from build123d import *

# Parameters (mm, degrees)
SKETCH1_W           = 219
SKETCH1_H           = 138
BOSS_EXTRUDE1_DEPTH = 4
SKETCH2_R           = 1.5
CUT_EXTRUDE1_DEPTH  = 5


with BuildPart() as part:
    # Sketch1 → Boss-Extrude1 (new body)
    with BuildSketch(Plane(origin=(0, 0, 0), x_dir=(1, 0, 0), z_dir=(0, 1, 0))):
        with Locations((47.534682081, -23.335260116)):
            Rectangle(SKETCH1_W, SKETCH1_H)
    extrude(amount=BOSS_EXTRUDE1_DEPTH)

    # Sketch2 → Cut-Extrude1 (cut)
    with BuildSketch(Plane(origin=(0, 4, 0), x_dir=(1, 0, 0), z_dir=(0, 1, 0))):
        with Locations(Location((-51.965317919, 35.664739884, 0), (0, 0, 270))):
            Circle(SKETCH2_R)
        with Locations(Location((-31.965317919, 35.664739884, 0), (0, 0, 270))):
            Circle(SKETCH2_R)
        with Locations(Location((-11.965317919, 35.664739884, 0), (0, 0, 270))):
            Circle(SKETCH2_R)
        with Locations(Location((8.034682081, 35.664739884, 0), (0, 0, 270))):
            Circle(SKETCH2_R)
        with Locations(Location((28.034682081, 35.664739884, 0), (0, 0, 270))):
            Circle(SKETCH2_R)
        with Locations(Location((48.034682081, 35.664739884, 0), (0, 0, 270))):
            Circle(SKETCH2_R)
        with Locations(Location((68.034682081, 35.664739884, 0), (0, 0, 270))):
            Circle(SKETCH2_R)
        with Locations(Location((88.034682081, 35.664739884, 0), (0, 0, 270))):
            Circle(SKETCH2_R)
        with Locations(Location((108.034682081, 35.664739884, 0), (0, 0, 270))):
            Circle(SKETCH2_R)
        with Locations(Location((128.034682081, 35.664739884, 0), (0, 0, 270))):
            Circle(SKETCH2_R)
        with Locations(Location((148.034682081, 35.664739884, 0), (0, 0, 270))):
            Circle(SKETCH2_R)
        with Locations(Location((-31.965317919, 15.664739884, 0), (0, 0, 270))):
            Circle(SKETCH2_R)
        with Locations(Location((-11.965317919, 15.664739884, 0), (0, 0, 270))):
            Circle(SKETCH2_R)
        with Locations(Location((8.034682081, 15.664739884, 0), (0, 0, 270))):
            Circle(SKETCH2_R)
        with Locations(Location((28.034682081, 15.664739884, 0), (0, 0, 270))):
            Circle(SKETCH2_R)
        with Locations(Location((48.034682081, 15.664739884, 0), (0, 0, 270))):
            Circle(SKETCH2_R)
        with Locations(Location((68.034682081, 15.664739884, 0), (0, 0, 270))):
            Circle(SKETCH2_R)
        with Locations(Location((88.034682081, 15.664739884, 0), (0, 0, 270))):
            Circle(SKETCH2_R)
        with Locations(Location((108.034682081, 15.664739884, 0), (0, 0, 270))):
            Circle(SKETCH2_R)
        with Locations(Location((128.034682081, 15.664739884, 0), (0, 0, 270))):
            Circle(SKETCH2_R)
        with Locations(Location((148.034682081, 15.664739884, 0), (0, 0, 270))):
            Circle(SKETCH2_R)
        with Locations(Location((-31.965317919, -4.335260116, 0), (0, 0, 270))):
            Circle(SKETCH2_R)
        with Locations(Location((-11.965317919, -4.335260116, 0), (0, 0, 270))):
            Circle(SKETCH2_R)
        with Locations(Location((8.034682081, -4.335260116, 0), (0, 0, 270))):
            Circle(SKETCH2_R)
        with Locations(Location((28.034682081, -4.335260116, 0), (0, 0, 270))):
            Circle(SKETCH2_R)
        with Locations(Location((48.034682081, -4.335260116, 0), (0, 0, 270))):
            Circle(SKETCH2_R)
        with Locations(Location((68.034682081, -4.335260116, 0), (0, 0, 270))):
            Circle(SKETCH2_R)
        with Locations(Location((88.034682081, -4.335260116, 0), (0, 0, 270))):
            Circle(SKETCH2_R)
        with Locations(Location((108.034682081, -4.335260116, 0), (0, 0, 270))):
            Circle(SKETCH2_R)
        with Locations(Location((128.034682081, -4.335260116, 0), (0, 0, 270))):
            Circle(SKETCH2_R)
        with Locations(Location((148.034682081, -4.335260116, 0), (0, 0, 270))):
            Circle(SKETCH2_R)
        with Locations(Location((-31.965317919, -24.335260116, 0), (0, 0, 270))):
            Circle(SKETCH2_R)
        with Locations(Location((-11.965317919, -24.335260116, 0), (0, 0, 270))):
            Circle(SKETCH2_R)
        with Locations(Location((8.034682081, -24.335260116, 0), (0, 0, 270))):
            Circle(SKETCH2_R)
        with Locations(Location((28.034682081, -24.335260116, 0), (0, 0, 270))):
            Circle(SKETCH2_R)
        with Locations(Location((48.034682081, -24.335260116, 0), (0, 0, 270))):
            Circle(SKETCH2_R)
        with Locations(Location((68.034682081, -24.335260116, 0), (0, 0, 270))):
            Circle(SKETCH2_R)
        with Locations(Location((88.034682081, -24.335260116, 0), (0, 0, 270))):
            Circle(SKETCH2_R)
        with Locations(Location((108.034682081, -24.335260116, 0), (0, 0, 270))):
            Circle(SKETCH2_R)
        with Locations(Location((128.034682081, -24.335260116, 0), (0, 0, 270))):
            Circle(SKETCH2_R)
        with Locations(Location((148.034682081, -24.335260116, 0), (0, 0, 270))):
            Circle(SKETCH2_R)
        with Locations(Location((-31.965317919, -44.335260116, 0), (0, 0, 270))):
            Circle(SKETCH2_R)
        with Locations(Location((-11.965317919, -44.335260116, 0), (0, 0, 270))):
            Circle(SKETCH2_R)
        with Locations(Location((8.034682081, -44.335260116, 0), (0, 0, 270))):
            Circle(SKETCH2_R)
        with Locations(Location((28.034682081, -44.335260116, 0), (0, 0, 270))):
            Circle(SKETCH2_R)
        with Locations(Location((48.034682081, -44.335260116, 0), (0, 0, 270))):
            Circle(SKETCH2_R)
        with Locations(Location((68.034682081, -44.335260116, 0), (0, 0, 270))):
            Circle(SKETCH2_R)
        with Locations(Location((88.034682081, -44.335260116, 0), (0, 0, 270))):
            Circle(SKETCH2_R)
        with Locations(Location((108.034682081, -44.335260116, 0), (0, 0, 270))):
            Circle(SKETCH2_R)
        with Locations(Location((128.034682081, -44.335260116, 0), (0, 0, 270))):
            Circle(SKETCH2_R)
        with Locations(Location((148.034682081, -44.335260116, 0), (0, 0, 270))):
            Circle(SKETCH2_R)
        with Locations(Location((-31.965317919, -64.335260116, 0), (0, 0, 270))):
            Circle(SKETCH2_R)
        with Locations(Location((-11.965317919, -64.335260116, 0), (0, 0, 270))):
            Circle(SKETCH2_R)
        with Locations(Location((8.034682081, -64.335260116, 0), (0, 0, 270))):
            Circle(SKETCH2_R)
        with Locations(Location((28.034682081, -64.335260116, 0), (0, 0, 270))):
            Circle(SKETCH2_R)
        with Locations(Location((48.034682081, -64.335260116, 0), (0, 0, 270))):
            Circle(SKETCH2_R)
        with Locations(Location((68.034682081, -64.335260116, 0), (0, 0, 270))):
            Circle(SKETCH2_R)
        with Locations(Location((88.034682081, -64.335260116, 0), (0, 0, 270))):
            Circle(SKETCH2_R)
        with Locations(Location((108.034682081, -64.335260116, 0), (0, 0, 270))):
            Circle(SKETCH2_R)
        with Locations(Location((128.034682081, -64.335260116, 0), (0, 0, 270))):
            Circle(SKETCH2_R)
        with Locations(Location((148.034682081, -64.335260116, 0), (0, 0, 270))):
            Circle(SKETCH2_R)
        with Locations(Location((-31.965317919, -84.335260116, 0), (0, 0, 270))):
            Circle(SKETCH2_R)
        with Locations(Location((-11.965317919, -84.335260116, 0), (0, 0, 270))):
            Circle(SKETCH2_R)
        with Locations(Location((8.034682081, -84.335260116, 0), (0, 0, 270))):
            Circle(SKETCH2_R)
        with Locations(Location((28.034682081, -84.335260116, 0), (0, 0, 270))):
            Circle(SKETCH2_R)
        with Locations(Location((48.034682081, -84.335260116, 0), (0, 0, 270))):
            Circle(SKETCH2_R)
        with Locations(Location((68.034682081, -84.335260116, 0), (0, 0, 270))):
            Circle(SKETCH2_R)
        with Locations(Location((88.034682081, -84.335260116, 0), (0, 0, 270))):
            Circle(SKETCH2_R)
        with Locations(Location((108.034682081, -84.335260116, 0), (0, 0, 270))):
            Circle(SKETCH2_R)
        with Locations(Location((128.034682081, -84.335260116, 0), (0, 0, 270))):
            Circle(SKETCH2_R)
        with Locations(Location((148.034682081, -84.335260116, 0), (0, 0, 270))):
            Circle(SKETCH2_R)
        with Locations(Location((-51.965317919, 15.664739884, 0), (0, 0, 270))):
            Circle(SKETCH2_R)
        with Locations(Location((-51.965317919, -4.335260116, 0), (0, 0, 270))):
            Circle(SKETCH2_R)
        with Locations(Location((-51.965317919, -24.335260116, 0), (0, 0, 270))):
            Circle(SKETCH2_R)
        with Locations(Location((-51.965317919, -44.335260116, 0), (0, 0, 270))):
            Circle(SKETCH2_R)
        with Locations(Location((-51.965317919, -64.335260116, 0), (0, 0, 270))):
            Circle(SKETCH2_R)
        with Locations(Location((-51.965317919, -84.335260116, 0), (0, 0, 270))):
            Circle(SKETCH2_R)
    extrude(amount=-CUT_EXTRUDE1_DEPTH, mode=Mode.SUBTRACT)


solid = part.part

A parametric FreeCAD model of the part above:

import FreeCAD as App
import Part
import Sketcher

V = App.Vector


def add_polygon(sketch, points):
    """Adds a closed chain of lines whose ends are joined by coincident constraints."""
    first, n = sketch.GeometryCount, len(points)
    for a, b in zip(points, points[1:] + points[:1]):
        sketch.addGeometry(Part.LineSegment(App.Vector(*a, 0), App.Vector(*b, 0)), False)
    for i in range(n):
        sketch.addConstraint(Sketcher.Constraint("Coincident", first + i, 2, first + (i + 1) % n, 1))

doc = App.newDocument("Part")
body = doc.addObject("PartDesign::Body", "Body")

sketch1 = doc.addObject("Sketcher::SketchObject", "Sketch")
body.addObject(sketch1)
sketch1.AttachmentSupport = (doc.XZ_Plane, [""])
sketch1.MapMode = "FlatFace"
add_polygon(sketch1, [(-62, -46), (-62, 92), (157, 92), (157, -46)])
sketch1.addConstraint(Sketcher.Constraint("Vertical", 0))
sketch1.addConstraint(Sketcher.Constraint("Horizontal", 1))
sketch1.addConstraint(Sketcher.Constraint("Vertical", 2))
sketch1.addConstraint(Sketcher.Constraint("Horizontal", 3))
sketch1.addConstraint(Sketcher.Constraint("DistanceX", 1, 1, 1, 2, 219.0))
sketch1.addConstraint(Sketcher.Constraint("DistanceY", 0, 1, 0, 2, 138.0))
sketch1.addConstraint(Sketcher.Constraint("DistanceY", -1, 1, 0, 2, 92.33526))
sketch1.addConstraint(Sketcher.Constraint("DistanceX", 0, 2, -1, 1, 61.965318))
pad1 = doc.addObject("PartDesign::Pad", "Pad")
body.addObject(pad1)
pad1.Profile = sketch1
pad1.Length = 4
pad1.Reversed = True

sketch2 = doc.addObject("Sketcher::SketchObject", "Sketch001")
body.addObject(sketch2)
sketch2.AttachmentSupport = (doc.XZ_Plane, [""])
sketch2.MapMode = "FlatFace"
sketch2.AttachmentOffset = App.Placement(V(0, 0, -4), App.Rotation())
sketch2.addGeometry(Part.Circle(V(-52, -35.7, 0), V(0, 0, 1), 1.5), False)
sketch2.addGeometry(Part.Circle(V(-32, -35.7, 0), V(0, 0, 1), 1.5), False)
sketch2.addGeometry(Part.Circle(V(-12, -35.7, 0), V(0, 0, 1), 1.5), False)
sketch2.addGeometry(Part.Circle(V(8, -35.7, 0), V(0, 0, 1), 1.5), False)
sketch2.addGeometry(Part.Circle(V(28, -35.7, 0), V(0, 0, 1), 1.5), False)
sketch2.addGeometry(Part.Circle(V(48, -35.7, 0), V(0, 0, 1), 1.5), False)
sketch2.addGeometry(Part.Circle(V(68, -35.7, 0), V(0, 0, 1), 1.5), False)
sketch2.addGeometry(Part.Circle(V(88, -35.7, 0), V(0, 0, 1), 1.5), False)
sketch2.addGeometry(Part.Circle(V(108, -35.7, 0), V(0, 0, 1), 1.5), False)
sketch2.addGeometry(Part.Circle(V(128, -35.7, 0), V(0, 0, 1), 1.5), False)
sketch2.addGeometry(Part.Circle(V(148, -35.7, 0), V(0, 0, 1), 1.5), False)
sketch2.addGeometry(Part.Circle(V(-32, -15.7, 0), V(0, 0, 1), 1.5), False)
sketch2.addGeometry(Part.Circle(V(-12, -15.7, 0), V(0, 0, 1), 1.5), False)
sketch2.addGeometry(Part.Circle(V(8, -15.7, 0), V(0, 0, 1), 1.5), False)
sketch2.addGeometry(Part.Circle(V(28, -15.7, 0), V(0, 0, 1), 1.5), False)
sketch2.addGeometry(Part.Circle(V(48, -15.7, 0), V(0, 0, 1), 1.5), False)
sketch2.addGeometry(Part.Circle(V(68, -15.7, 0), V(0, 0, 1), 1.5), False)
sketch2.addGeometry(Part.Circle(V(88, -15.7, 0), V(0, 0, 1), 1.5), False)
sketch2.addGeometry(Part.Circle(V(108, -15.7, 0), V(0, 0, 1), 1.5), False)
sketch2.addGeometry(Part.Circle(V(128, -15.7, 0), V(0, 0, 1), 1.5), False)
sketch2.addGeometry(Part.Circle(V(148, -15.7, 0), V(0, 0, 1), 1.5), False)
sketch2.addGeometry(Part.Circle(V(-32, 4.3, 0), V(0, 0, 1), 1.5), False)
sketch2.addGeometry(Part.Circle(V(-12, 4.3, 0), V(0, 0, 1), 1.5), False)
sketch2.addGeometry(Part.Circle(V(8, 4.3, 0), V(0, 0, 1), 1.5), False)
sketch2.addGeometry(Part.Circle(V(28, 4.3, 0), V(0, 0, 1), 1.5), False)
sketch2.addGeometry(Part.Circle(V(48, 4.3, 0), V(0, 0, 1), 1.5), False)
sketch2.addGeometry(Part.Circle(V(68, 4.3, 0), V(0, 0, 1), 1.5), False)
sketch2.addGeometry(Part.Circle(V(88, 4.3, 0), V(0, 0, 1), 1.5), False)
sketch2.addGeometry(Part.Circle(V(108, 4.3, 0), V(0, 0, 1), 1.5), False)
sketch2.addGeometry(Part.Circle(V(128, 4.3, 0), V(0, 0, 1), 1.5), False)
sketch2.addGeometry(Part.Circle(V(148, 4.3, 0), V(0, 0, 1), 1.5), False)
sketch2.addGeometry(Part.Circle(V(-32, 24.3, 0), V(0, 0, 1), 1.5), False)
sketch2.addGeometry(Part.Circle(V(-12, 24.3, 0), V(0, 0, 1), 1.5), False)
sketch2.addGeometry(Part.Circle(V(8, 24.3, 0), V(0, 0, 1), 1.5), False)
sketch2.addGeometry(Part.Circle(V(28, 24.3, 0), V(0, 0, 1), 1.5), False)
sketch2.addGeometry(Part.Circle(V(48, 24.3, 0), V(0, 0, 1), 1.5), False)
sketch2.addGeometry(Part.Circle(V(68, 24.3, 0), V(0, 0, 1), 1.5), False)
sketch2.addGeometry(Part.Circle(V(88, 24.3, 0), V(0, 0, 1), 1.5), False)
sketch2.addGeometry(Part.Circle(V(108, 24.3, 0), V(0, 0, 1), 1.5), False)
sketch2.addGeometry(Part.Circle(V(128, 24.3, 0), V(0, 0, 1), 1.5), False)
sketch2.addGeometry(Part.Circle(V(148, 24.3, 0), V(0, 0, 1), 1.5), False)
sketch2.addGeometry(Part.Circle(V(-32, 44.3, 0), V(0, 0, 1), 1.5), False)
sketch2.addGeometry(Part.Circle(V(-12, 44.3, 0), V(0, 0, 1), 1.5), False)
sketch2.addGeometry(Part.Circle(V(8, 44.3, 0), V(0, 0, 1), 1.5), False)
sketch2.addGeometry(Part.Circle(V(28, 44.3, 0), V(0, 0, 1), 1.5), False)
sketch2.addGeometry(Part.Circle(V(48, 44.3, 0), V(0, 0, 1), 1.5), False)
sketch2.addGeometry(Part.Circle(V(68, 44.3, 0), V(0, 0, 1), 1.5), False)
sketch2.addGeometry(Part.Circle(V(88, 44.3, 0), V(0, 0, 1), 1.5), False)
sketch2.addGeometry(Part.Circle(V(108, 44.3, 0), V(0, 0, 1), 1.5), False)
sketch2.addGeometry(Part.Circle(V(128, 44.3, 0), V(0, 0, 1), 1.5), False)
sketch2.addGeometry(Part.Circle(V(148, 44.3, 0), V(0, 0, 1), 1.5), False)
sketch2.addGeometry(Part.Circle(V(-32, 64.3, 0), V(0, 0, 1), 1.5), False)
sketch2.addGeometry(Part.Circle(V(-12, 64.3, 0), V(0, 0, 1), 1.5), False)
sketch2.addGeometry(Part.Circle(V(8, 64.3, 0), V(0, 0, 1), 1.5), False)
sketch2.addGeometry(Part.Circle(V(28, 64.3, 0), V(0, 0, 1), 1.5), False)
sketch2.addGeometry(Part.Circle(V(48, 64.3, 0), V(0, 0, 1), 1.5), False)
sketch2.addGeometry(Part.Circle(V(68, 64.3, 0), V(0, 0, 1), 1.5), False)
sketch2.addGeometry(Part.Circle(V(88, 64.3, 0), V(0, 0, 1), 1.5), False)
sketch2.addGeometry(Part.Circle(V(108, 64.3, 0), V(0, 0, 1), 1.5), False)
sketch2.addGeometry(Part.Circle(V(128, 64.3, 0), V(0, 0, 1), 1.5), False)
sketch2.addGeometry(Part.Circle(V(148, 64.3, 0), V(0, 0, 1), 1.5), False)
sketch2.addGeometry(Part.Circle(V(-32, 84.3, 0), V(0, 0, 1), 1.5), False)
sketch2.addGeometry(Part.Circle(V(-12, 84.3, 0), V(0, 0, 1), 1.5), False)
sketch2.addGeometry(Part.Circle(V(8, 84.3, 0), V(0, 0, 1), 1.5), False)
sketch2.addGeometry(Part.Circle(V(28, 84.3, 0), V(0, 0, 1), 1.5), False)
sketch2.addGeometry(Part.Circle(V(48, 84.3, 0), V(0, 0, 1), 1.5), False)
sketch2.addGeometry(Part.Circle(V(68, 84.3, 0), V(0, 0, 1), 1.5), False)
sketch2.addGeometry(Part.Circle(V(88, 84.3, 0), V(0, 0, 1), 1.5), False)
sketch2.addGeometry(Part.Circle(V(108, 84.3, 0), V(0, 0, 1), 1.5), False)
sketch2.addGeometry(Part.Circle(V(128, 84.3, 0), V(0, 0, 1), 1.5), False)
sketch2.addGeometry(Part.Circle(V(148, 84.3, 0), V(0, 0, 1), 1.5), False)
sketch2.addGeometry(Part.Circle(V(-52, -15.7, 0), V(0, 0, 1), 1.5), False)
sketch2.addGeometry(Part.Circle(V(-52, 4.3, 0), V(0, 0, 1), 1.5), False)
sketch2.addGeometry(Part.Circle(V(-52, 24.3, 0), V(0, 0, 1), 1.5), False)
sketch2.addGeometry(Part.Circle(V(-52, 44.3, 0), V(0, 0, 1), 1.5), False)
sketch2.addGeometry(Part.Circle(V(-52, 64.3, 0), V(0, 0, 1), 1.5), False)
sketch2.addGeometry(Part.Circle(V(-52, 84.3, 0), V(0, 0, 1), 1.5), False)
sketch2.addConstraint(Sketcher.Constraint("Equal", 0, 1))
sketch2.addConstraint(Sketcher.Constraint("Equal", 1, 2))
sketch2.addConstraint(Sketcher.Constraint("Equal", 2, 3))
sketch2.addConstraint(Sketcher.Constraint("Equal", 3, 4))
sketch2.addConstraint(Sketcher.Constraint("Equal", 4, 5))
sketch2.addConstraint(Sketcher.Constraint("Equal", 5, 6))
sketch2.addConstraint(Sketcher.Constraint("Equal", 6, 7))
sketch2.addConstraint(Sketcher.Constraint("Equal", 7, 8))
sketch2.addConstraint(Sketcher.Constraint("Equal", 8, 9))
sketch2.addConstraint(Sketcher.Constraint("Equal", 9, 10))
sketch2.addConstraint(Sketcher.Constraint("Equal", 10, 11))
sketch2.addConstraint(Sketcher.Constraint("Equal", 11, 12))
sketch2.addConstraint(Sketcher.Constraint("Equal", 12, 13))
sketch2.addConstraint(Sketcher.Constraint("Equal", 13, 14))
sketch2.addConstraint(Sketcher.Constraint("Equal", 14, 15))
sketch2.addConstraint(Sketcher.Constraint("Equal", 15, 16))
sketch2.addConstraint(Sketcher.Constraint("Equal", 16, 17))
sketch2.addConstraint(Sketcher.Constraint("Equal", 17, 18))
sketch2.addConstraint(Sketcher.Constraint("Equal", 18, 19))
sketch2.addConstraint(Sketcher.Constraint("Equal", 19, 20))
sketch2.addConstraint(Sketcher.Constraint("Equal", 20, 21))
sketch2.addConstraint(Sketcher.Constraint("Equal", 21, 22))
sketch2.addConstraint(Sketcher.Constraint("Equal", 22, 23))
sketch2.addConstraint(Sketcher.Constraint("Equal", 23, 24))
sketch2.addConstraint(Sketcher.Constraint("Equal", 24, 25))
sketch2.addConstraint(Sketcher.Constraint("Equal", 25, 26))
sketch2.addConstraint(Sketcher.Constraint("Equal", 26, 27))
sketch2.addConstraint(Sketcher.Constraint("Equal", 27, 28))
sketch2.addConstraint(Sketcher.Constraint("Equal", 28, 29))
sketch2.addConstraint(Sketcher.Constraint("Equal", 29, 30))
sketch2.addConstraint(Sketcher.Constraint("Equal", 30, 31))
sketch2.addConstraint(Sketcher.Constraint("Equal", 31, 32))
sketch2.addConstraint(Sketcher.Constraint("Equal", 32, 33))
sketch2.addConstraint(Sketcher.Constraint("Equal", 33, 34))
sketch2.addConstraint(Sketcher.Constraint("Equal", 34, 35))
sketch2.addConstraint(Sketcher.Constraint("Equal", 35, 36))
sketch2.addConstraint(Sketcher.Constraint("Equal", 36, 37))
sketch2.addConstraint(Sketcher.Constraint("Equal", 37, 38))
sketch2.addConstraint(Sketcher.Constraint("Equal", 38, 39))
sketch2.addConstraint(Sketcher.Constraint("Equal", 39, 40))
sketch2.addConstraint(Sketcher.Constraint("Equal", 40, 41))
sketch2.addConstraint(Sketcher.Constraint("Equal", 41, 42))
sketch2.addConstraint(Sketcher.Constraint("Equal", 42, 43))
sketch2.addConstraint(Sketcher.Constraint("Equal", 43, 44))
sketch2.addConstraint(Sketcher.Constraint("Equal", 44, 45))
sketch2.addConstraint(Sketcher.Constraint("Equal", 45, 46))
sketch2.addConstraint(Sketcher.Constraint("Equal", 46, 47))
sketch2.addConstraint(Sketcher.Constraint("Equal", 47, 48))
sketch2.addConstraint(Sketcher.Constraint("Equal", 48, 49))
sketch2.addConstraint(Sketcher.Constraint("Equal", 49, 50))
sketch2.addConstraint(Sketcher.Constraint("Equal", 50, 51))
sketch2.addConstraint(Sketcher.Constraint("Equal", 51, 52))
sketch2.addConstraint(Sketcher.Constraint("Equal", 52, 53))
sketch2.addConstraint(Sketcher.Constraint("Equal", 53, 54))
sketch2.addConstraint(Sketcher.Constraint("Equal", 54, 55))
sketch2.addConstraint(Sketcher.Constraint("Equal", 55, 56))
sketch2.addConstraint(Sketcher.Constraint("Equal", 56, 57))
sketch2.addConstraint(Sketcher.Constraint("Equal", 57, 58))
sketch2.addConstraint(Sketcher.Constraint("Equal", 58, 59))
sketch2.addConstraint(Sketcher.Constraint("Equal", 59, 60))
sketch2.addConstraint(Sketcher.Constraint("Equal", 60, 61))
sketch2.addConstraint(Sketcher.Constraint("Equal", 61, 62))
sketch2.addConstraint(Sketcher.Constraint("Equal", 62, 63))
sketch2.addConstraint(Sketcher.Constraint("Equal", 63, 64))
sketch2.addConstraint(Sketcher.Constraint("Equal", 64, 65))
sketch2.addConstraint(Sketcher.Constraint("Equal", 65, 66))
sketch2.addConstraint(Sketcher.Constraint("Equal", 66, 67))
sketch2.addConstraint(Sketcher.Constraint("Equal", 67, 68))
sketch2.addConstraint(Sketcher.Constraint("Equal", 68, 69))
sketch2.addConstraint(Sketcher.Constraint("Equal", 69, 70))
sketch2.addConstraint(Sketcher.Constraint("Equal", 70, 71))
sketch2.addConstraint(Sketcher.Constraint("Equal", 71, 72))
sketch2.addConstraint(Sketcher.Constraint("Equal", 72, 73))
sketch2.addConstraint(Sketcher.Constraint("Equal", 73, 74))
sketch2.addConstraint(Sketcher.Constraint("Equal", 74, 75))
sketch2.addConstraint(Sketcher.Constraint("Equal", 75, 76))
sketch2.addConstraint(Sketcher.Constraint("Horizontal", 0, 3, 1, 3))
sketch2.addConstraint(Sketcher.Constraint("Horizontal", 1, 3, 2, 3))
sketch2.addConstraint(Sketcher.Constraint("Horizontal", 2, 3, 3, 3))
sketch2.addConstraint(Sketcher.Constraint("Horizontal", 3, 3, 4, 3))
sketch2.addConstraint(Sketcher.Constraint("Horizontal", 4, 3, 5, 3))
sketch2.addConstraint(Sketcher.Constraint("Horizontal", 5, 3, 6, 3))
sketch2.addConstraint(Sketcher.Constraint("Horizontal", 6, 3, 7, 3))
sketch2.addConstraint(Sketcher.Constraint("Horizontal", 7, 3, 8, 3))
sketch2.addConstraint(Sketcher.Constraint("Horizontal", 8, 3, 9, 3))
sketch2.addConstraint(Sketcher.Constraint("Horizontal", 9, 3, 10, 3))
sketch2.addConstraint(Sketcher.Constraint("Horizontal", 11, 3, 12, 3))
sketch2.addConstraint(Sketcher.Constraint("Horizontal", 12, 3, 13, 3))
sketch2.addConstraint(Sketcher.Constraint("Horizontal", 13, 3, 14, 3))
sketch2.addConstraint(Sketcher.Constraint("Horizontal", 14, 3, 15, 3))
sketch2.addConstraint(Sketcher.Constraint("Horizontal", 15, 3, 16, 3))
sketch2.addConstraint(Sketcher.Constraint("Horizontal", 16, 3, 17, 3))
sketch2.addConstraint(Sketcher.Constraint("Horizontal", 17, 3, 18, 3))
sketch2.addConstraint(Sketcher.Constraint("Horizontal", 18, 3, 19, 3))
sketch2.addConstraint(Sketcher.Constraint("Horizontal", 19, 3, 20, 3))
sketch2.addConstraint(Sketcher.Constraint("Horizontal", 21, 3, 22, 3))
sketch2.addConstraint(Sketcher.Constraint("Horizontal", 22, 3, 23, 3))
sketch2.addConstraint(Sketcher.Constraint("Horizontal", 23, 3, 24, 3))
sketch2.addConstraint(Sketcher.Constraint("Horizontal", 24, 3, 25, 3))
sketch2.addConstraint(Sketcher.Constraint("Horizontal", 25, 3, 26, 3))
sketch2.addConstraint(Sketcher.Constraint("Horizontal", 26, 3, 27, 3))
sketch2.addConstraint(Sketcher.Constraint("Horizontal", 27, 3, 28, 3))
sketch2.addConstraint(Sketcher.Constraint("Horizontal", 28, 3, 29, 3))
sketch2.addConstraint(Sketcher.Constraint("Horizontal", 29, 3, 30, 3))
sketch2.addConstraint(Sketcher.Constraint("Horizontal", 31, 3, 32, 3))
sketch2.addConstraint(Sketcher.Constraint("Horizontal", 32, 3, 33, 3))
sketch2.addConstraint(Sketcher.Constraint("Horizontal", 33, 3, 34, 3))
sketch2.addConstraint(Sketcher.Constraint("Horizontal", 34, 3, 35, 3))
sketch2.addConstraint(Sketcher.Constraint("Horizontal", 35, 3, 36, 3))
sketch2.addConstraint(Sketcher.Constraint("Horizontal", 36, 3, 37, 3))
sketch2.addConstraint(Sketcher.Constraint("Horizontal", 37, 3, 38, 3))
sketch2.addConstraint(Sketcher.Constraint("Horizontal", 38, 3, 39, 3))
sketch2.addConstraint(Sketcher.Constraint("Horizontal", 39, 3, 40, 3))
sketch2.addConstraint(Sketcher.Constraint("Horizontal", 41, 3, 42, 3))
sketch2.addConstraint(Sketcher.Constraint("Horizontal", 42, 3, 43, 3))
sketch2.addConstraint(Sketcher.Constraint("Horizontal", 43, 3, 44, 3))
sketch2.addConstraint(Sketcher.Constraint("Horizontal", 44, 3, 45, 3))
sketch2.addConstraint(Sketcher.Constraint("Horizontal", 45, 3, 46, 3))
sketch2.addConstraint(Sketcher.Constraint("Horizontal", 46, 3, 47, 3))
sketch2.addConstraint(Sketcher.Constraint("Horizontal", 47, 3, 48, 3))
sketch2.addConstraint(Sketcher.Constraint("Horizontal", 48, 3, 49, 3))
sketch2.addConstraint(Sketcher.Constraint("Horizontal", 49, 3, 50, 3))
sketch2.addConstraint(Sketcher.Constraint("Horizontal", 51, 3, 52, 3))
sketch2.addConstraint(Sketcher.Constraint("Horizontal", 52, 3, 53, 3))
sketch2.addConstraint(Sketcher.Constraint("Horizontal", 53, 3, 54, 3))
sketch2.addConstraint(Sketcher.Constraint("Horizontal", 54, 3, 55, 3))
sketch2.addConstraint(Sketcher.Constraint("Horizontal", 55, 3, 56, 3))
sketch2.addConstraint(Sketcher.Constraint("Horizontal", 56, 3, 57, 3))
sketch2.addConstraint(Sketcher.Constraint("Horizontal", 57, 3, 58, 3))
sketch2.addConstraint(Sketcher.Constraint("Horizontal", 58, 3, 59, 3))
sketch2.addConstraint(Sketcher.Constraint("Horizontal", 59, 3, 60, 3))
sketch2.addConstraint(Sketcher.Constraint("Horizontal", 61, 3, 62, 3))
sketch2.addConstraint(Sketcher.Constraint("Horizontal", 62, 3, 63, 3))
sketch2.addConstraint(Sketcher.Constraint("Horizontal", 63, 3, 64, 3))
sketch2.addConstraint(Sketcher.Constraint("Horizontal", 64, 3, 65, 3))
sketch2.addConstraint(Sketcher.Constraint("Horizontal", 65, 3, 66, 3))
sketch2.addConstraint(Sketcher.Constraint("Horizontal", 66, 3, 67, 3))
sketch2.addConstraint(Sketcher.Constraint("Horizontal", 67, 3, 68, 3))
sketch2.addConstraint(Sketcher.Constraint("Horizontal", 68, 3, 69, 3))
sketch2.addConstraint(Sketcher.Constraint("Horizontal", 69, 3, 70, 3))
sketch2.addConstraint(Sketcher.Constraint("Horizontal", 20, 3, 71, 3))
sketch2.addConstraint(Sketcher.Constraint("Horizontal", 30, 3, 72, 3))
sketch2.addConstraint(Sketcher.Constraint("Horizontal", 40, 3, 73, 3))
sketch2.addConstraint(Sketcher.Constraint("Horizontal", 50, 3, 74, 3))
sketch2.addConstraint(Sketcher.Constraint("Horizontal", 60, 3, 75, 3))
sketch2.addConstraint(Sketcher.Constraint("Horizontal", 70, 3, 76, 3))
sketch2.addConstraint(Sketcher.Constraint("Vertical", 1, 3, 11, 3))
sketch2.addConstraint(Sketcher.Constraint("Vertical", 2, 3, 12, 3))
sketch2.addConstraint(Sketcher.Constraint("Vertical", 3, 3, 13, 3))
sketch2.addConstraint(Sketcher.Constraint("Vertical", 4, 3, 14, 3))
sketch2.addConstraint(Sketcher.Constraint("Vertical", 5, 3, 15, 3))
sketch2.addConstraint(Sketcher.Constraint("Vertical", 6, 3, 16, 3))
sketch2.addConstraint(Sketcher.Constraint("Vertical", 7, 3, 17, 3))
sketch2.addConstraint(Sketcher.Constraint("Vertical", 8, 3, 18, 3))
sketch2.addConstraint(Sketcher.Constraint("Vertical", 9, 3, 19, 3))
sketch2.addConstraint(Sketcher.Constraint("Vertical", 10, 3, 20, 3))
sketch2.addConstraint(Sketcher.Constraint("Vertical", 11, 3, 21, 3))
sketch2.addConstraint(Sketcher.Constraint("Vertical", 12, 3, 22, 3))
sketch2.addConstraint(Sketcher.Constraint("Vertical", 13, 3, 23, 3))
sketch2.addConstraint(Sketcher.Constraint("Vertical", 14, 3, 24, 3))
sketch2.addConstraint(Sketcher.Constraint("Vertical", 15, 3, 25, 3))
sketch2.addConstraint(Sketcher.Constraint("Vertical", 16, 3, 26, 3))
sketch2.addConstraint(Sketcher.Constraint("Vertical", 17, 3, 27, 3))
sketch2.addConstraint(Sketcher.Constraint("Vertical", 18, 3, 28, 3))
sketch2.addConstraint(Sketcher.Constraint("Vertical", 19, 3, 29, 3))
sketch2.addConstraint(Sketcher.Constraint("Vertical", 20, 3, 30, 3))
sketch2.addConstraint(Sketcher.Constraint("Vertical", 21, 3, 31, 3))
sketch2.addConstraint(Sketcher.Constraint("Vertical", 22, 3, 32, 3))
sketch2.addConstraint(Sketcher.Constraint("Vertical", 23, 3, 33, 3))
sketch2.addConstraint(Sketcher.Constraint("Vertical", 24, 3, 34, 3))
sketch2.addConstraint(Sketcher.Constraint("Vertical", 25, 3, 35, 3))
sketch2.addConstraint(Sketcher.Constraint("Vertical", 26, 3, 36, 3))
sketch2.addConstraint(Sketcher.Constraint("Vertical", 27, 3, 37, 3))
sketch2.addConstraint(Sketcher.Constraint("Vertical", 28, 3, 38, 3))
sketch2.addConstraint(Sketcher.Constraint("Vertical", 29, 3, 39, 3))
sketch2.addConstraint(Sketcher.Constraint("Vertical", 30, 3, 40, 3))
sketch2.addConstraint(Sketcher.Constraint("Vertical", 31, 3, 41, 3))
sketch2.addConstraint(Sketcher.Constraint("Vertical", 32, 3, 42, 3))
sketch2.addConstraint(Sketcher.Constraint("Vertical", 33, 3, 43, 3))
sketch2.addConstraint(Sketcher.Constraint("Vertical", 34, 3, 44, 3))
sketch2.addConstraint(Sketcher.Constraint("Vertical", 35, 3, 45, 3))
sketch2.addConstraint(Sketcher.Constraint("Vertical", 36, 3, 46, 3))
sketch2.addConstraint(Sketcher.Constraint("Vertical", 37, 3, 47, 3))
sketch2.addConstraint(Sketcher.Constraint("Vertical", 38, 3, 48, 3))
sketch2.addConstraint(Sketcher.Constraint("Vertical", 39, 3, 49, 3))
sketch2.addConstraint(Sketcher.Constraint("Vertical", 40, 3, 50, 3))
sketch2.addConstraint(Sketcher.Constraint("Vertical", 41, 3, 51, 3))
sketch2.addConstraint(Sketcher.Constraint("Vertical", 42, 3, 52, 3))
sketch2.addConstraint(Sketcher.Constraint("Vertical", 43, 3, 53, 3))
sketch2.addConstraint(Sketcher.Constraint("Vertical", 44, 3, 54, 3))
sketch2.addConstraint(Sketcher.Constraint("Vertical", 45, 3, 55, 3))
sketch2.addConstraint(Sketcher.Constraint("Vertical", 46, 3, 56, 3))
sketch2.addConstraint(Sketcher.Constraint("Vertical", 47, 3, 57, 3))
sketch2.addConstraint(Sketcher.Constraint("Vertical", 48, 3, 58, 3))
sketch2.addConstraint(Sketcher.Constraint("Vertical", 49, 3, 59, 3))
sketch2.addConstraint(Sketcher.Constraint("Vertical", 50, 3, 60, 3))
sketch2.addConstraint(Sketcher.Constraint("Vertical", 51, 3, 61, 3))
sketch2.addConstraint(Sketcher.Constraint("Vertical", 52, 3, 62, 3))
sketch2.addConstraint(Sketcher.Constraint("Vertical", 53, 3, 63, 3))
sketch2.addConstraint(Sketcher.Constraint("Vertical", 54, 3, 64, 3))
sketch2.addConstraint(Sketcher.Constraint("Vertical", 55, 3, 65, 3))
sketch2.addConstraint(Sketcher.Constraint("Vertical", 56, 3, 66, 3))
sketch2.addConstraint(Sketcher.Constraint("Vertical", 57, 3, 67, 3))
sketch2.addConstraint(Sketcher.Constraint("Vertical", 58, 3, 68, 3))
sketch2.addConstraint(Sketcher.Constraint("Vertical", 59, 3, 69, 3))
sketch2.addConstraint(Sketcher.Constraint("Vertical", 60, 3, 70, 3))
sketch2.addConstraint(Sketcher.Constraint("Vertical", 0, 3, 71, 3))
sketch2.addConstraint(Sketcher.Constraint("Vertical", 71, 3, 72, 3))
sketch2.addConstraint(Sketcher.Constraint("Vertical", 72, 3, 73, 3))
sketch2.addConstraint(Sketcher.Constraint("Vertical", 73, 3, 74, 3))
sketch2.addConstraint(Sketcher.Constraint("Vertical", 74, 3, 75, 3))
sketch2.addConstraint(Sketcher.Constraint("Vertical", 75, 3, 76, 3))
sketch2.addConstraint(Sketcher.Constraint("Diameter", 0, 3.0))
sketch2.addConstraint(Sketcher.Constraint("DistanceY", 0, 3, -1, 1, 35.66474))
sketch2.addConstraint(Sketcher.Constraint("DistanceY", 11, 3, -1, 1, 15.66474))
sketch2.addConstraint(Sketcher.Constraint("DistanceY", -1, 1, 21, 3, 4.33526))
sketch2.addConstraint(Sketcher.Constraint("DistanceY", -1, 1, 31, 3, 24.33526))
sketch2.addConstraint(Sketcher.Constraint("DistanceY", -1, 1, 41, 3, 44.33526))
sketch2.addConstraint(Sketcher.Constraint("DistanceY", -1, 1, 51, 3, 64.33526))
sketch2.addConstraint(Sketcher.Constraint("DistanceY", -1, 1, 61, 3, 84.33526))
sketch2.addConstraint(Sketcher.Constraint("DistanceX", 0, 3, -1, 1, 51.965318))
sketch2.addConstraint(Sketcher.Constraint("DistanceX", 1, 3, -1, 1, 31.965318))
sketch2.addConstraint(Sketcher.Constraint("DistanceX", 2, 3, -1, 1, 11.965318))
sketch2.addConstraint(Sketcher.Constraint("DistanceX", -1, 1, 3, 3, 8.034682))
sketch2.addConstraint(Sketcher.Constraint("DistanceX", -1, 1, 4, 3, 28.034682))
sketch2.addConstraint(Sketcher.Constraint("DistanceX", -1, 1, 5, 3, 48.034682))
sketch2.addConstraint(Sketcher.Constraint("DistanceX", -1, 1, 6, 3, 68.034682))
sketch2.addConstraint(Sketcher.Constraint("DistanceX", -1, 1, 7, 3, 88.034682))
sketch2.addConstraint(Sketcher.Constraint("DistanceX", -1, 1, 8, 3, 108.034682))
sketch2.addConstraint(Sketcher.Constraint("DistanceX", -1, 1, 9, 3, 128.034682))
sketch2.addConstraint(Sketcher.Constraint("DistanceX", -1, 1, 10, 3, 148.034682))
pocket1 = doc.addObject("PartDesign::Pocket", "Pocket")
body.addObject(pocket1)
pocket1.Profile = sketch2
pocket1.Length = 5
pocket1.Reversed = True

doc.recompute()
